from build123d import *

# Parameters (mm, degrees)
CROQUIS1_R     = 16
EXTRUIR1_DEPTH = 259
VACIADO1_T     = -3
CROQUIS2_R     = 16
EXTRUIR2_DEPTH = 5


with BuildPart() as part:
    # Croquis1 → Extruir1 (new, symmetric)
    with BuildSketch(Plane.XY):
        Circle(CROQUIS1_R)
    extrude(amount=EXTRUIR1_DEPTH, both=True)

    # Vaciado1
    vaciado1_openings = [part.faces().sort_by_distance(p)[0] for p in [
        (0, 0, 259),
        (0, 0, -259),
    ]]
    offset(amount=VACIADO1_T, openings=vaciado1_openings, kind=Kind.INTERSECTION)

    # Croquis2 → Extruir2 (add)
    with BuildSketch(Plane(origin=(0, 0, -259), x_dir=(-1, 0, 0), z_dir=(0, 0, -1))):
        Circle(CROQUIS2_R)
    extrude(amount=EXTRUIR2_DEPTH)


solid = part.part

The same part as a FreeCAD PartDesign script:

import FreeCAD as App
import Part
import Sketcher

V = App.Vector
Q = App.Units.Quantity


def faces_at(feature, points):
    """Names of the faces that lie closest to the given points."""
    faces = feature.Shape.Faces
    near = lambda p: min(range(len(faces)), key=lambda i: faces[i].distToShape(Part.Vertex(*p))[0])
    return sorted({f"Face{near(p) + 1}" for p in points})

doc = App.newDocument("Part")
body = doc.addObject("PartDesign::Body", "Body")

# Sketch on XY plane
sketch1 = body.newObject("Sketcher::SketchObject", "Sketch")
sketch1.AttachmentSupport = (doc.getObject("XY_Plane"), [""])
sketch1.MapMode = "FlatFace"
sketch1.addGeometry(Part.Circle(V(0, 0, 0), V(0, 0, 1), 16), False)
sketch1.addConstraint([
    Sketcher.Constraint("Coincident", 0, 3, -1, 1),
    Sketcher.Constraint("Diameter", 0, Q("32 mm")),
])
pad1 = body.newObject("PartDesign::Pad", "Pad")
pad1.Profile = sketch1
pad1.Length = 518
pad1.Midplane = True
doc.recompute()

thickness = body.newObject("PartDesign::Thickness", "Thickness")
thickness.Base = (pad1, faces_at(pad1, [(0, 0, 259), (0, 0, -259)]))
thickness.Value = 3
thickness.Reversed = True
thickness.Join = "Intersection"

# Sketch on XY plane
sketch2 = body.newObject("Sketcher::SketchObject", "Sketch001")
sketch2.AttachmentSupport = (doc.getObject("XY_Plane"), [""])
sketch2.MapMode = "FlatFace"
sketch2.AttachmentOffset = App.Placement(V(0, 0, -259), App.Rotation())
sketch2.addGeometry(Part.Circle(V(0, 0, 0), V(0, 0, 1), 16), False)
sketch2.addConstraint([
    Sketcher.Constraint("Coincident", 0, 3, -1, 1),
    Sketcher.Constraint("Diameter", 0, Q("32 mm")),
])
pad2 = body.newObject("PartDesign::Pad", "Pad001")
pad2.Profile = sketch2
pad2.Length = 5
pad2.Reversed = True

doc.recompute()
